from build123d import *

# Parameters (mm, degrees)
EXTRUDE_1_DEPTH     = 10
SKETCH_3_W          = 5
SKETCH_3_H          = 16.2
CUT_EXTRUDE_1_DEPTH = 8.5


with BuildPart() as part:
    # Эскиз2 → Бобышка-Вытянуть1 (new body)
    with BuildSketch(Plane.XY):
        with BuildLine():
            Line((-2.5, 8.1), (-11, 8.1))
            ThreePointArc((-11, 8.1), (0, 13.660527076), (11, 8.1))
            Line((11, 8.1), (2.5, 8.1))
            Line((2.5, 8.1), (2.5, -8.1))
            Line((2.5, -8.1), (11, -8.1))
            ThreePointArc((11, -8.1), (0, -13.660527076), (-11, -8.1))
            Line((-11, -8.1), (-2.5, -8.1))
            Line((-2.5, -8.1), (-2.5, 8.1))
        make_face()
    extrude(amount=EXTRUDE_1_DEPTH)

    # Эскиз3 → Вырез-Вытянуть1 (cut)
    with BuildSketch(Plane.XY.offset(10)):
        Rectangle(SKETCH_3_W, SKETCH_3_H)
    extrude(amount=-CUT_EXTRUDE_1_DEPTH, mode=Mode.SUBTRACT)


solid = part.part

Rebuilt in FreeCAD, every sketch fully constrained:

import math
import FreeCAD as App
import Part
import Sketcher
from FreeCAD import Vector
Q = App.Units.Quantity


def add_polygon(sketch, points):
    """Adds a closed chain of lines whose ends are joined by coincident constraints."""
    first, n = sketch.GeometryCount, len(points)
    for a, b in zip(points, points[1:] + points[:1]):
        sketch.addGeometry(Part.LineSegment(App.Vector(*a, 0), App.Vector(*b, 0)), False)
    for i in range(n):
        sketch.addConstraint(Sketcher.Constraint("Coincident", first + i, 2, first + (i + 1) % n, 1))

doc = App.newDocument("Part")
body = doc.addObject("PartDesign::Body", "Body")

# Sketch on XY plane
sketch1 = body.newObject("Sketcher::SketchObject", "Sketch")
sketch1.AttachmentSupport = (doc.getObject("XY_Plane"), [""])
sketch1.MapMode = "FlatFace"
sketch1.addGeometry([
    Part.LineSegment(Vector(-11, 8, 0), Vector(-2, 8, 0)),  # 0
    Part.LineSegment(Vector(-2, 8, 0), Vector(-2, -8, 0)),  # 1
    Part.LineSegment(Vector(-2, -8, 0), Vector(-11, -8, 0)),  # 2
    Part.ArcOfCircle(Part.Circle(Vector(0, 0, 0), Vector(0, 0, 1), 14), math.radians(-144), math.radians(-36)),  # 3
    Part.LineSegment(Vector(11, -8, 0), Vector(2, -8, 0)),  # 4
    Part.LineSegment(Vector(2, -8, 0), Vector(2, 8, 0)),  # 5
    Part.LineSegment(Vector(2, 8, 0), Vector(11, 8, 0)),  # 6
    Part.ArcOfCircle(Part.Circle(Vector(0, 0, 0), Vector(0, 0, 1), 14), math.radians(36), math.radians(144)),  # 7
], False)
sketch1.addConstraint([
    Sketcher.Constraint("Coincident", 0, 2, 1, 1),
    Sketcher.Constraint("Coincident", 1, 2, 2, 1),
    Sketcher.Constraint("Coincident", 2, 2, 3, 1),
    Sketcher.Constraint("Coincident", 3, 2, 4, 1),
    Sketcher.Constraint("Coincident", 4, 2, 5, 1),
    Sketcher.Constraint("Coincident", 5, 2, 6, 1),
    Sketcher.Constraint("Coincident", 6, 2, 7, 1),
    Sketcher.Constraint("Coincident", 7, 2, 0, 1),
    Sketcher.Constraint("Horizontal", 0),
    Sketcher.Constraint("Vertical", 1),
    Sketcher.Constraint("Horizontal", 2),
    Sketcher.Constraint("Horizontal", 4),
    Sketcher.Constraint("Vertical", 5),
    Sketcher.Constraint("Horizontal", 6),
    Sketcher.Constraint("Coincident", 3, 3, -1, 1),
    Sketcher.Constraint("Coincident", 7, 3, -1, 1),
    Sketcher.Constraint("Equal", 3, 7),
    Sketcher.Constraint("Symmetric", 0, 2, 4, 2, -1, 1),
    Sketcher.Constraint("Horizontal", 2, 2, 3, 2),
    Sketcher.Constraint("Horizontal", 0, 2, 5, 2),
    Sketcher.Constraint("DistanceX", 0, 1, 0, 2, Q("8.5 mm")),
    Sketcher.Constraint("DistanceY", 1, 2, 1, 1, Q("16.2 mm")),
    Sketcher.Constraint("DistanceX", 2, 2, -1, 1, Q("11 mm")),
])
pad1 = body.newObject("PartDesign::Pad", "Pad")
pad1.Profile = sketch1
pad1.Length = 10

# Sketch on XY plane
sketch2 = body.newObject("Sketcher::SketchObject", "Sketch001")
sketch2.AttachmentSupport = (doc.getObject("XY_Plane"), [""])
sketch2.MapMode = "FlatFace"
sketch2.AttachmentOffset = App.Placement(Vector(0, 0, 10), App.Rotation())
add_polygon(sketch2, [(-2, 8), (-2, -8), (2, -8), (2, 8)])  # lines 0-3
sketch2.addConstraint([
    Sketcher.Constraint("Vertical", 0),
    Sketcher.Constraint("Horizontal", 1),
    Sketcher.Constraint("Vertical", 2),
    Sketcher.Constraint("Horizontal", 3),
    Sketcher.Constraint("Symmetric", 0, 2, 2, 2, -1, 1),
    Sketcher.Constraint("DistanceX", 1, 1, 1, 2, Q("5 mm")),
    Sketcher.Constraint("DistanceY", 0, 2, 0, 1, Q("16.2 mm")),
])
pocket1 = body.newObject("PartDesign::Pocket", "Pocket")
pocket1.Profile = sketch2
pocket1.Length = 8.5

doc.recompute()
